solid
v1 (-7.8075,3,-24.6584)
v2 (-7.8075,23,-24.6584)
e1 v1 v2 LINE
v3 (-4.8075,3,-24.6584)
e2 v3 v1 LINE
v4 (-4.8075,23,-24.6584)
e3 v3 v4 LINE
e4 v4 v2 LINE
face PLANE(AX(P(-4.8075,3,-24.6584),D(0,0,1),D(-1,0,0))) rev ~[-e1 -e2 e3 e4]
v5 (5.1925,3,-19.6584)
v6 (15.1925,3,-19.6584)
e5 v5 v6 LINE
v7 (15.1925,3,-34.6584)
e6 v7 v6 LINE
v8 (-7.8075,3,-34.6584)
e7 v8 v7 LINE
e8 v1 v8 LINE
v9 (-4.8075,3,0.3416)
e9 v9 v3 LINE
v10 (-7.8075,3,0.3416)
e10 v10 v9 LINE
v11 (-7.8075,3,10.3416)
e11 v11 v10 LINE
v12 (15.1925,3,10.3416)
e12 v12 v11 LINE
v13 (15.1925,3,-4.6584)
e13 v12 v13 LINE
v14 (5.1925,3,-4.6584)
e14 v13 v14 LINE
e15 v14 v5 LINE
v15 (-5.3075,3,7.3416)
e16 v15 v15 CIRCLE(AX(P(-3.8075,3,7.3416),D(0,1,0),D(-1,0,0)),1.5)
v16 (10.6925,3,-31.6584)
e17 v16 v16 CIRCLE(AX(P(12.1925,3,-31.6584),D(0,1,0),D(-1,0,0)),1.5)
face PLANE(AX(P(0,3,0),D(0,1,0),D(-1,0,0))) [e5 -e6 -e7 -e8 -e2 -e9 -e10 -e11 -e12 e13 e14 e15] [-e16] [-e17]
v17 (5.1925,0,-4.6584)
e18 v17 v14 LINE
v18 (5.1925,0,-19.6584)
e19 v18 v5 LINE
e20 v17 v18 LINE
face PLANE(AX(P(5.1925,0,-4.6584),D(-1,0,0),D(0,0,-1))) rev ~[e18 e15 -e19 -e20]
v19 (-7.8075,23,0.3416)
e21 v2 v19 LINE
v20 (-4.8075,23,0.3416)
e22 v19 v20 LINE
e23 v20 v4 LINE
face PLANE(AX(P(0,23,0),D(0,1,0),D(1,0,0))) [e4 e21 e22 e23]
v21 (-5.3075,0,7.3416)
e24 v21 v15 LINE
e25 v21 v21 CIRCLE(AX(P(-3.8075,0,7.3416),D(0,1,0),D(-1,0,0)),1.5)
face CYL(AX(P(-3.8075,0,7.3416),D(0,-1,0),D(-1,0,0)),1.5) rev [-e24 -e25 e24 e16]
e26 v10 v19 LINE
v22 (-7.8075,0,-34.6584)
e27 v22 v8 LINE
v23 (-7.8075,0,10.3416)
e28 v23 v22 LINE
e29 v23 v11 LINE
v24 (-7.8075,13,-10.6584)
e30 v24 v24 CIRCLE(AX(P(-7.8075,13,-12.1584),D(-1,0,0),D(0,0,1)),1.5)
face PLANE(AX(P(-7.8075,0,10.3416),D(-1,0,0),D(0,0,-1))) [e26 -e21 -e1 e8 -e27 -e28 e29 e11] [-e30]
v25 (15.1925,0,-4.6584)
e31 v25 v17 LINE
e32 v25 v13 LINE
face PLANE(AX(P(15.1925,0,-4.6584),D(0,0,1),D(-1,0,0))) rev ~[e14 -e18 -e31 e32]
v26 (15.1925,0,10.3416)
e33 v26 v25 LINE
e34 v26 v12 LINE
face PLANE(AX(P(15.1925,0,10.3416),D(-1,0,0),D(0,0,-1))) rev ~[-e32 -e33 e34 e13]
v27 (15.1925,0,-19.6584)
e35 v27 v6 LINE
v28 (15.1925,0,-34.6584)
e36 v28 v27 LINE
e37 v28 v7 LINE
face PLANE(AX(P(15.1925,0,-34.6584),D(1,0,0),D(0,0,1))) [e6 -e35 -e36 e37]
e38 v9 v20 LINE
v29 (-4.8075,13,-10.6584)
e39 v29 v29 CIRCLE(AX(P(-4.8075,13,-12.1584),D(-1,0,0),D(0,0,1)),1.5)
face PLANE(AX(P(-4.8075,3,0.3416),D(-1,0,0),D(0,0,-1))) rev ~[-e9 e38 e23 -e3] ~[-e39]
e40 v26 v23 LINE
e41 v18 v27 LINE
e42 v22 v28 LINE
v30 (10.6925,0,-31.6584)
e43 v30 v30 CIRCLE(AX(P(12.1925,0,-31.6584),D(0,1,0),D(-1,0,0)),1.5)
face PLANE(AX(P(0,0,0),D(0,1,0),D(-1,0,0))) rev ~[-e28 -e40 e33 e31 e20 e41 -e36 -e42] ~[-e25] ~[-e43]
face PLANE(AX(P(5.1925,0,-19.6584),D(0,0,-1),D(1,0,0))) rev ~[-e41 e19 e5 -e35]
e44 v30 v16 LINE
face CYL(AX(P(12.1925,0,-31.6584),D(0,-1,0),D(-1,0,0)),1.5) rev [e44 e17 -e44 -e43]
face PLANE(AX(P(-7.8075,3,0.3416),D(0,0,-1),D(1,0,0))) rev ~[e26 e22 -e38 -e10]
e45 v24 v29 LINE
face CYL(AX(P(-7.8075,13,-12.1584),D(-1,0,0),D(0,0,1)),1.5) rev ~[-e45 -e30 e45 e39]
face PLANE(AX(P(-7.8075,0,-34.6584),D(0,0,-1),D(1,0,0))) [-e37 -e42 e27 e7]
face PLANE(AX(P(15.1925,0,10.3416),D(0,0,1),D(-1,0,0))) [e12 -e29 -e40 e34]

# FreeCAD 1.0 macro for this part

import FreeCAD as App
import Part
import Sketcher

V = App.Vector


def add_polygon(sketch, points):
    """Adds a closed chain of lines whose ends are joined by coincident constraints."""
    first, n = sketch.GeometryCount, len(points)
    for a, b in zip(points, points[1:] + points[:1]):
        sketch.addGeometry(Part.LineSegment(App.Vector(*a, 0), App.Vector(*b, 0)), False)
    for i in range(n):
        sketch.addConstraint(Sketcher.Constraint("Coincident", first + i, 2, first + (i + 1) % n, 1))

doc = App.newDocument("Part")
body = doc.addObject("PartDesign::Body", "Body")

sketch1 = doc.addObject("Sketcher::SketchObject", "Sketch")
body.addObject(sketch1)
sketch1.AttachmentSupport = (doc.XZ_Plane, [""])
sketch1.MapMode = "FlatFace"
add_polygon(sketch1, [(-7.8075, 10.3416), (15.1925, 10.3416), (15.1925, -4.6584), (5.1925, -4.6584), (5.1925, -19.6584), (15.1925, -19.6584), (15.1925, -34.6584), (-7.8075, -34.6584)])
sketch1.addGeometry(Part.Circle(V(12.1925, -31.6584, 0), V(0, 0, 1), 1.5), False)
sketch1.addGeometry(Part.Circle(V(-3.8075, 7.3416, 0), V(0, 0, 1), 1.5), False)
sketch1.addConstraint(Sketcher.Constraint("Horizontal", 0))
sketch1.addConstraint(Sketcher.Constraint("Vertical", 1))
sketch1.addConstraint(Sketcher.Constraint("Horizontal", 2))
sketch1.addConstraint(Sketcher.Constraint("Vertical", 3))
sketch1.addConstraint(Sketcher.Constraint("Horizontal", 4))
sketch1.addConstraint(Sketcher.Constraint("Vertical", 5))
sketch1.addConstraint(Sketcher.Constraint("Horizontal", 6))
sketch1.addConstraint(Sketcher.Constraint("Vertical", 7))
sketch1.addConstraint(Sketcher.Constraint("Equal", 8, 9))
sketch1.addConstraint(Sketcher.Constraint("Vertical", 1, 2, 4, 2))
sketch1.addConstraint(Sketcher.Constraint("Equal", 1, 3))
sketch1.addConstraint(Sketcher.Constraint("Equal", 3, 5))
sketch1.addConstraint(Sketcher.Constraint("Diameter", 8, 3.0))
sketch1.addConstraint(Sketcher.Constraint("DistanceX", 0, 1, 0, 2, 23.0))
sketch1.addConstraint(Sketcher.Constraint("DistanceX", 2, 2, 2, 1, 10.0))
sketch1.addConstraint(Sketcher.Constraint("DistanceY", 1, 2, 1, 1, 15.0))
sketch1.addConstraint(Sketcher.Constraint("DistanceX", 9, 3, 0, 2, 19.0))
sketch1.addConstraint(Sketcher.Constraint("DistanceY", 9, 3, 0, 2, 3.0))
sketch1.addConstraint(Sketcher.Constraint("DistanceX", 8, 3, 0, 2, 3.0))
sketch1.addConstraint(Sketcher.Constraint("DistanceY", 5, 2, 8, 3, 3.0))
sketch1.addConstraint(Sketcher.Constraint("DistanceX", -1, 1, 8, 3, 12.1925))
sketch1.addConstraint(Sketcher.Constraint("DistanceY", 8, 3, -1, 1, 31.6584))
pad1 = doc.addObject("PartDesign::Pad", "Pad")
body.addObject(pad1)
pad1.Profile = sketch1
pad1.Length = 3
pad1.Reversed = True

sketch2 = doc.addObject("Sketcher::SketchObject", "Sketch001")
body.addObject(sketch2)
sketch2.AttachmentSupport = (doc.XZ_Plane, [""])
sketch2.MapMode = "FlatFace"
sketch2.AttachmentOffset = App.Placement(V(0, 0, -3), App.Rotation())
add_polygon(sketch2, [(-4.8075, -24.6584), (-7.8075, -24.6584), (-7.8075, 0.3416), (-4.8075, 0.3416)])
sketch2.addConstraint(Sketcher.Constraint("Horizontal", 0))
sketch2.addConstraint(Sketcher.Constraint("Vertical", 1))
sketch2.addConstraint(Sketcher.Constraint("Horizontal", 2))
sketch2.addConstraint(Sketcher.Constraint("Vertical", 3))
sketch2.addConstraint(Sketcher.Constraint("DistanceX", 0, 2, 0, 1, 3.0))
sketch2.addConstraint(Sketcher.Constraint("DistanceY", 1, 1, 1, 2, 25.0))
sketch2.addConstraint(Sketcher.Constraint("DistanceX", 0, 2, -1, 1, 7.8075))
sketch2.addConstraint(Sketcher.Constraint("DistanceY", 0, 2, -1, 1, 24.6584))
pad2 = doc.addObject("PartDesign::Pad", "Pad001")
body.addObject(pad2)
pad2.Profile = sketch2
pad2.Length = 20
pad2.Reversed = True

sketch3 = doc.addObject("Sketcher::SketchObject", "Sketch002")
body.addObject(sketch3)
sketch3.AttachmentSupport = (doc.YZ_Plane, [""])
sketch3.MapMode = "FlatFace"
sketch3.AttachmentOffset = App.Placement(V(0, 0, -7.8075), App.Rotation())
sketch3.addGeometry(Part.Circle(V(13, -12.1584, 0), V(0, 0, 1), 1.5), False)
sketch3.addConstraint(Sketcher.Constraint("Diameter", 0, 3.0))
sketch3.addConstraint(Sketcher.Constraint("DistanceX", -1, 1, 0, 3, 13.0))
sketch3.addConstraint(Sketcher.Constraint("DistanceY", 0, 3, -1, 1, 12.1584))
pocket1 = doc.addObject("PartDesign::Pocket", "Pocket")
body.addObject(pocket1)
pocket1.Profile = sketch3
pocket1.Length = 3
pocket1.Reversed = True

doc.recompute()
